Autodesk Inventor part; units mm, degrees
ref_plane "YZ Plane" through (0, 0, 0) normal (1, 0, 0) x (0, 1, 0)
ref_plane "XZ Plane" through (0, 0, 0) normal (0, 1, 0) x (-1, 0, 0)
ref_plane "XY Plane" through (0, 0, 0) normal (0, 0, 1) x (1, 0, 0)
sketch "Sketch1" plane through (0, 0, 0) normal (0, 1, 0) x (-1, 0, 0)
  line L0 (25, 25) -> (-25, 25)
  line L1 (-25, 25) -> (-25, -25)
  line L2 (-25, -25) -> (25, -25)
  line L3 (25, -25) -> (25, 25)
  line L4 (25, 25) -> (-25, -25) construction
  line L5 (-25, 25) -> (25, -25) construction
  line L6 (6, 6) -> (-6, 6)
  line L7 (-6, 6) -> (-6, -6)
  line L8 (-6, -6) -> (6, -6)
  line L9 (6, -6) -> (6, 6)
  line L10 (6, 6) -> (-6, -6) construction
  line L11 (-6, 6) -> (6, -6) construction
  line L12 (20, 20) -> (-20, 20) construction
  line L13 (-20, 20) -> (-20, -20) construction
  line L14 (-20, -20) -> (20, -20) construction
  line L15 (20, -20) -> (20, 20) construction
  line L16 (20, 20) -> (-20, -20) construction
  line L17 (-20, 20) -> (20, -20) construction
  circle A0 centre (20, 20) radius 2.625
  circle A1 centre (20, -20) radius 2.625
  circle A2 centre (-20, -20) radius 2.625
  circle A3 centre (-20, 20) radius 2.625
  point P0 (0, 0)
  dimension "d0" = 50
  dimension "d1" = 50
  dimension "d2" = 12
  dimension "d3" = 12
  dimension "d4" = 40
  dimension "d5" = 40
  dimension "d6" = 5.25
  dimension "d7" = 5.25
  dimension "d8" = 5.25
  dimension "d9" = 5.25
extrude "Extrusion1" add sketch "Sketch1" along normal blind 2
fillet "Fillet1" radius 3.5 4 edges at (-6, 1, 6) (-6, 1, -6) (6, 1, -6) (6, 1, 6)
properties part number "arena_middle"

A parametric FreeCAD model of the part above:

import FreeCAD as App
import Part
import Sketcher

V = App.Vector


def edges_at(feature, points):
    """Names of the edges that pass closest to the given points."""
    edges = feature.Shape.Edges
    near = lambda p: min(range(len(edges)), key=lambda i: edges[i].distToShape(Part.Vertex(*p))[0])
    return sorted({f"Edge{near(p) + 1}" for p in points})

doc = App.newDocument("Part")
body = doc.addObject("PartDesign::Body", "Body")

# Sketch on XZ plane
sketch1 = body.newObject("Sketcher::SketchObject", "Sketch")
sketch1.AttachmentSupport = (doc.getObject("XZ_Plane"), [""])
sketch1.MapMode = "FlatFace"
sketch1.addGeometry(Part.LineSegment(V(-25, -25, 0), V(-25, 25, 0)), False)
sketch1.addGeometry(Part.LineSegment(V(-25, 25, 0), V(25, 25, 0)), False)
sketch1.addGeometry(Part.LineSegment(V(25, 25, 0), V(25, -25, 0)), False)
sketch1.addGeometry(Part.LineSegment(V(25, -25, 0), V(-25, -25, 0)), False)
sketch1.addGeometry(Part.Circle(V(20, -20, 0), V(0, 0, 1), 2.6), False)
sketch1.addGeometry(Part.Circle(V(-20, -20, 0), V(0, 0, 1), 2.6), False)
sketch1.addGeometry(Part.Circle(V(20, 20, 0), V(0, 0, 1), 2.6), False)
sketch1.addGeometry(Part.LineSegment(V(6, 6, 0), V(-6, 6, 0)), False)
sketch1.addGeometry(Part.LineSegment(V(-6, 6, 0), V(-6, -6, 0)), False)
sketch1.addGeometry(Part.LineSegment(V(-6, -6, 0), V(6, -6, 0)), False)
sketch1.addGeometry(Part.LineSegment(V(6, -6, 0), V(6, 6, 0)), False)
sketch1.addGeometry(Part.Circle(V(-20, 20, 0), V(0, 0, 1), 2.6), False)
sketch1.addConstraint(Sketcher.Constraint("Coincident", 0, 2, 1, 1))
sketch1.addConstraint(Sketcher.Constraint("Coincident", 1, 2, 2, 1))
sketch1.addConstraint(Sketcher.Constraint("Coincident", 2, 2, 3, 1))
sketch1.addConstraint(Sketcher.Constraint("Coincident", 3, 2, 0, 1))
sketch1.addConstraint(Sketcher.Constraint("Coincident", 7, 2, 8, 1))
sketch1.addConstraint(Sketcher.Constraint("Coincident", 8, 2, 9, 1))
sketch1.addConstraint(Sketcher.Constraint("Coincident", 9, 2, 10, 1))
sketch1.addConstraint(Sketcher.Constraint("Coincident", 10, 2, 7, 1))
sketch1.addConstraint(Sketcher.Constraint("Vertical", 0))
sketch1.addConstraint(Sketcher.Constraint("Horizontal", 1))
sketch1.addConstraint(Sketcher.Constraint("Vertical", 2))
sketch1.addConstraint(Sketcher.Constraint("Horizontal", 3))
sketch1.addConstraint(Sketcher.Constraint("Horizontal", 7))
sketch1.addConstraint(Sketcher.Constraint("Vertical", 8))
sketch1.addConstraint(Sketcher.Constraint("Horizontal", 9))
sketch1.addConstraint(Sketcher.Constraint("Vertical", 10))
sketch1.addConstraint(Sketcher.Constraint("Equal", 4, 5))
sketch1.addConstraint(Sketcher.Constraint("Equal", 5, 6))
sketch1.addConstraint(Sketcher.Constraint("Equal", 6, 11))
sketch1.addConstraint(Sketcher.Constraint("Symmetric", 5, 3, 6, 3, -1, 1))
sketch1.addConstraint(Sketcher.Constraint("Symmetric", 4, 3, 11, 3, -1, 1))
sketch1.addConstraint(Sketcher.Constraint("Symmetric", 0, 2, 2, 2, -1, 1))
sketch1.addConstraint(Sketcher.Constraint("Symmetric", 7, 2, 9, 2, -1, 1))
sketch1.addConstraint(Sketcher.Constraint("Symmetric", 4, 3, 5, 3, -2))
sketch1.addConstraint(Sketcher.Constraint("Equal", 3, 0))
sketch1.addConstraint(Sketcher.Constraint("Equal", 9, 8))
sketch1.addConstraint(Sketcher.Constraint("Diameter", 4, 5.25))
sketch1.addConstraint(Sketcher.Constraint("DistanceX", 1, 1, 1, 2, 50.0))
sketch1.addConstraint(Sketcher.Constraint("DistanceX", 7, 2, 7, 1, 12.0))
sketch1.addConstraint(Sketcher.Constraint("DistanceX", 5, 3, 4, 3, 40.0))
sketch1.addConstraint(Sketcher.Constraint("DistanceY", 4, 3, 6, 3, 40.0))
pad1 = body.newObject("PartDesign::Pad", "Pad")
pad1.Profile = sketch1
pad1.Length = 2
pad1.Reversed = True
doc.recompute()

fillet = body.newObject("PartDesign::Fillet", "Fillet")
fillet.Base = (pad1, edges_at(pad1, [
    (-6, 1, 6),
    (-6, 1, -6),
    (6, 1, -6),
    (6, 1, 6),
]))
fillet.Radius = 3.5

doc.recompute()
